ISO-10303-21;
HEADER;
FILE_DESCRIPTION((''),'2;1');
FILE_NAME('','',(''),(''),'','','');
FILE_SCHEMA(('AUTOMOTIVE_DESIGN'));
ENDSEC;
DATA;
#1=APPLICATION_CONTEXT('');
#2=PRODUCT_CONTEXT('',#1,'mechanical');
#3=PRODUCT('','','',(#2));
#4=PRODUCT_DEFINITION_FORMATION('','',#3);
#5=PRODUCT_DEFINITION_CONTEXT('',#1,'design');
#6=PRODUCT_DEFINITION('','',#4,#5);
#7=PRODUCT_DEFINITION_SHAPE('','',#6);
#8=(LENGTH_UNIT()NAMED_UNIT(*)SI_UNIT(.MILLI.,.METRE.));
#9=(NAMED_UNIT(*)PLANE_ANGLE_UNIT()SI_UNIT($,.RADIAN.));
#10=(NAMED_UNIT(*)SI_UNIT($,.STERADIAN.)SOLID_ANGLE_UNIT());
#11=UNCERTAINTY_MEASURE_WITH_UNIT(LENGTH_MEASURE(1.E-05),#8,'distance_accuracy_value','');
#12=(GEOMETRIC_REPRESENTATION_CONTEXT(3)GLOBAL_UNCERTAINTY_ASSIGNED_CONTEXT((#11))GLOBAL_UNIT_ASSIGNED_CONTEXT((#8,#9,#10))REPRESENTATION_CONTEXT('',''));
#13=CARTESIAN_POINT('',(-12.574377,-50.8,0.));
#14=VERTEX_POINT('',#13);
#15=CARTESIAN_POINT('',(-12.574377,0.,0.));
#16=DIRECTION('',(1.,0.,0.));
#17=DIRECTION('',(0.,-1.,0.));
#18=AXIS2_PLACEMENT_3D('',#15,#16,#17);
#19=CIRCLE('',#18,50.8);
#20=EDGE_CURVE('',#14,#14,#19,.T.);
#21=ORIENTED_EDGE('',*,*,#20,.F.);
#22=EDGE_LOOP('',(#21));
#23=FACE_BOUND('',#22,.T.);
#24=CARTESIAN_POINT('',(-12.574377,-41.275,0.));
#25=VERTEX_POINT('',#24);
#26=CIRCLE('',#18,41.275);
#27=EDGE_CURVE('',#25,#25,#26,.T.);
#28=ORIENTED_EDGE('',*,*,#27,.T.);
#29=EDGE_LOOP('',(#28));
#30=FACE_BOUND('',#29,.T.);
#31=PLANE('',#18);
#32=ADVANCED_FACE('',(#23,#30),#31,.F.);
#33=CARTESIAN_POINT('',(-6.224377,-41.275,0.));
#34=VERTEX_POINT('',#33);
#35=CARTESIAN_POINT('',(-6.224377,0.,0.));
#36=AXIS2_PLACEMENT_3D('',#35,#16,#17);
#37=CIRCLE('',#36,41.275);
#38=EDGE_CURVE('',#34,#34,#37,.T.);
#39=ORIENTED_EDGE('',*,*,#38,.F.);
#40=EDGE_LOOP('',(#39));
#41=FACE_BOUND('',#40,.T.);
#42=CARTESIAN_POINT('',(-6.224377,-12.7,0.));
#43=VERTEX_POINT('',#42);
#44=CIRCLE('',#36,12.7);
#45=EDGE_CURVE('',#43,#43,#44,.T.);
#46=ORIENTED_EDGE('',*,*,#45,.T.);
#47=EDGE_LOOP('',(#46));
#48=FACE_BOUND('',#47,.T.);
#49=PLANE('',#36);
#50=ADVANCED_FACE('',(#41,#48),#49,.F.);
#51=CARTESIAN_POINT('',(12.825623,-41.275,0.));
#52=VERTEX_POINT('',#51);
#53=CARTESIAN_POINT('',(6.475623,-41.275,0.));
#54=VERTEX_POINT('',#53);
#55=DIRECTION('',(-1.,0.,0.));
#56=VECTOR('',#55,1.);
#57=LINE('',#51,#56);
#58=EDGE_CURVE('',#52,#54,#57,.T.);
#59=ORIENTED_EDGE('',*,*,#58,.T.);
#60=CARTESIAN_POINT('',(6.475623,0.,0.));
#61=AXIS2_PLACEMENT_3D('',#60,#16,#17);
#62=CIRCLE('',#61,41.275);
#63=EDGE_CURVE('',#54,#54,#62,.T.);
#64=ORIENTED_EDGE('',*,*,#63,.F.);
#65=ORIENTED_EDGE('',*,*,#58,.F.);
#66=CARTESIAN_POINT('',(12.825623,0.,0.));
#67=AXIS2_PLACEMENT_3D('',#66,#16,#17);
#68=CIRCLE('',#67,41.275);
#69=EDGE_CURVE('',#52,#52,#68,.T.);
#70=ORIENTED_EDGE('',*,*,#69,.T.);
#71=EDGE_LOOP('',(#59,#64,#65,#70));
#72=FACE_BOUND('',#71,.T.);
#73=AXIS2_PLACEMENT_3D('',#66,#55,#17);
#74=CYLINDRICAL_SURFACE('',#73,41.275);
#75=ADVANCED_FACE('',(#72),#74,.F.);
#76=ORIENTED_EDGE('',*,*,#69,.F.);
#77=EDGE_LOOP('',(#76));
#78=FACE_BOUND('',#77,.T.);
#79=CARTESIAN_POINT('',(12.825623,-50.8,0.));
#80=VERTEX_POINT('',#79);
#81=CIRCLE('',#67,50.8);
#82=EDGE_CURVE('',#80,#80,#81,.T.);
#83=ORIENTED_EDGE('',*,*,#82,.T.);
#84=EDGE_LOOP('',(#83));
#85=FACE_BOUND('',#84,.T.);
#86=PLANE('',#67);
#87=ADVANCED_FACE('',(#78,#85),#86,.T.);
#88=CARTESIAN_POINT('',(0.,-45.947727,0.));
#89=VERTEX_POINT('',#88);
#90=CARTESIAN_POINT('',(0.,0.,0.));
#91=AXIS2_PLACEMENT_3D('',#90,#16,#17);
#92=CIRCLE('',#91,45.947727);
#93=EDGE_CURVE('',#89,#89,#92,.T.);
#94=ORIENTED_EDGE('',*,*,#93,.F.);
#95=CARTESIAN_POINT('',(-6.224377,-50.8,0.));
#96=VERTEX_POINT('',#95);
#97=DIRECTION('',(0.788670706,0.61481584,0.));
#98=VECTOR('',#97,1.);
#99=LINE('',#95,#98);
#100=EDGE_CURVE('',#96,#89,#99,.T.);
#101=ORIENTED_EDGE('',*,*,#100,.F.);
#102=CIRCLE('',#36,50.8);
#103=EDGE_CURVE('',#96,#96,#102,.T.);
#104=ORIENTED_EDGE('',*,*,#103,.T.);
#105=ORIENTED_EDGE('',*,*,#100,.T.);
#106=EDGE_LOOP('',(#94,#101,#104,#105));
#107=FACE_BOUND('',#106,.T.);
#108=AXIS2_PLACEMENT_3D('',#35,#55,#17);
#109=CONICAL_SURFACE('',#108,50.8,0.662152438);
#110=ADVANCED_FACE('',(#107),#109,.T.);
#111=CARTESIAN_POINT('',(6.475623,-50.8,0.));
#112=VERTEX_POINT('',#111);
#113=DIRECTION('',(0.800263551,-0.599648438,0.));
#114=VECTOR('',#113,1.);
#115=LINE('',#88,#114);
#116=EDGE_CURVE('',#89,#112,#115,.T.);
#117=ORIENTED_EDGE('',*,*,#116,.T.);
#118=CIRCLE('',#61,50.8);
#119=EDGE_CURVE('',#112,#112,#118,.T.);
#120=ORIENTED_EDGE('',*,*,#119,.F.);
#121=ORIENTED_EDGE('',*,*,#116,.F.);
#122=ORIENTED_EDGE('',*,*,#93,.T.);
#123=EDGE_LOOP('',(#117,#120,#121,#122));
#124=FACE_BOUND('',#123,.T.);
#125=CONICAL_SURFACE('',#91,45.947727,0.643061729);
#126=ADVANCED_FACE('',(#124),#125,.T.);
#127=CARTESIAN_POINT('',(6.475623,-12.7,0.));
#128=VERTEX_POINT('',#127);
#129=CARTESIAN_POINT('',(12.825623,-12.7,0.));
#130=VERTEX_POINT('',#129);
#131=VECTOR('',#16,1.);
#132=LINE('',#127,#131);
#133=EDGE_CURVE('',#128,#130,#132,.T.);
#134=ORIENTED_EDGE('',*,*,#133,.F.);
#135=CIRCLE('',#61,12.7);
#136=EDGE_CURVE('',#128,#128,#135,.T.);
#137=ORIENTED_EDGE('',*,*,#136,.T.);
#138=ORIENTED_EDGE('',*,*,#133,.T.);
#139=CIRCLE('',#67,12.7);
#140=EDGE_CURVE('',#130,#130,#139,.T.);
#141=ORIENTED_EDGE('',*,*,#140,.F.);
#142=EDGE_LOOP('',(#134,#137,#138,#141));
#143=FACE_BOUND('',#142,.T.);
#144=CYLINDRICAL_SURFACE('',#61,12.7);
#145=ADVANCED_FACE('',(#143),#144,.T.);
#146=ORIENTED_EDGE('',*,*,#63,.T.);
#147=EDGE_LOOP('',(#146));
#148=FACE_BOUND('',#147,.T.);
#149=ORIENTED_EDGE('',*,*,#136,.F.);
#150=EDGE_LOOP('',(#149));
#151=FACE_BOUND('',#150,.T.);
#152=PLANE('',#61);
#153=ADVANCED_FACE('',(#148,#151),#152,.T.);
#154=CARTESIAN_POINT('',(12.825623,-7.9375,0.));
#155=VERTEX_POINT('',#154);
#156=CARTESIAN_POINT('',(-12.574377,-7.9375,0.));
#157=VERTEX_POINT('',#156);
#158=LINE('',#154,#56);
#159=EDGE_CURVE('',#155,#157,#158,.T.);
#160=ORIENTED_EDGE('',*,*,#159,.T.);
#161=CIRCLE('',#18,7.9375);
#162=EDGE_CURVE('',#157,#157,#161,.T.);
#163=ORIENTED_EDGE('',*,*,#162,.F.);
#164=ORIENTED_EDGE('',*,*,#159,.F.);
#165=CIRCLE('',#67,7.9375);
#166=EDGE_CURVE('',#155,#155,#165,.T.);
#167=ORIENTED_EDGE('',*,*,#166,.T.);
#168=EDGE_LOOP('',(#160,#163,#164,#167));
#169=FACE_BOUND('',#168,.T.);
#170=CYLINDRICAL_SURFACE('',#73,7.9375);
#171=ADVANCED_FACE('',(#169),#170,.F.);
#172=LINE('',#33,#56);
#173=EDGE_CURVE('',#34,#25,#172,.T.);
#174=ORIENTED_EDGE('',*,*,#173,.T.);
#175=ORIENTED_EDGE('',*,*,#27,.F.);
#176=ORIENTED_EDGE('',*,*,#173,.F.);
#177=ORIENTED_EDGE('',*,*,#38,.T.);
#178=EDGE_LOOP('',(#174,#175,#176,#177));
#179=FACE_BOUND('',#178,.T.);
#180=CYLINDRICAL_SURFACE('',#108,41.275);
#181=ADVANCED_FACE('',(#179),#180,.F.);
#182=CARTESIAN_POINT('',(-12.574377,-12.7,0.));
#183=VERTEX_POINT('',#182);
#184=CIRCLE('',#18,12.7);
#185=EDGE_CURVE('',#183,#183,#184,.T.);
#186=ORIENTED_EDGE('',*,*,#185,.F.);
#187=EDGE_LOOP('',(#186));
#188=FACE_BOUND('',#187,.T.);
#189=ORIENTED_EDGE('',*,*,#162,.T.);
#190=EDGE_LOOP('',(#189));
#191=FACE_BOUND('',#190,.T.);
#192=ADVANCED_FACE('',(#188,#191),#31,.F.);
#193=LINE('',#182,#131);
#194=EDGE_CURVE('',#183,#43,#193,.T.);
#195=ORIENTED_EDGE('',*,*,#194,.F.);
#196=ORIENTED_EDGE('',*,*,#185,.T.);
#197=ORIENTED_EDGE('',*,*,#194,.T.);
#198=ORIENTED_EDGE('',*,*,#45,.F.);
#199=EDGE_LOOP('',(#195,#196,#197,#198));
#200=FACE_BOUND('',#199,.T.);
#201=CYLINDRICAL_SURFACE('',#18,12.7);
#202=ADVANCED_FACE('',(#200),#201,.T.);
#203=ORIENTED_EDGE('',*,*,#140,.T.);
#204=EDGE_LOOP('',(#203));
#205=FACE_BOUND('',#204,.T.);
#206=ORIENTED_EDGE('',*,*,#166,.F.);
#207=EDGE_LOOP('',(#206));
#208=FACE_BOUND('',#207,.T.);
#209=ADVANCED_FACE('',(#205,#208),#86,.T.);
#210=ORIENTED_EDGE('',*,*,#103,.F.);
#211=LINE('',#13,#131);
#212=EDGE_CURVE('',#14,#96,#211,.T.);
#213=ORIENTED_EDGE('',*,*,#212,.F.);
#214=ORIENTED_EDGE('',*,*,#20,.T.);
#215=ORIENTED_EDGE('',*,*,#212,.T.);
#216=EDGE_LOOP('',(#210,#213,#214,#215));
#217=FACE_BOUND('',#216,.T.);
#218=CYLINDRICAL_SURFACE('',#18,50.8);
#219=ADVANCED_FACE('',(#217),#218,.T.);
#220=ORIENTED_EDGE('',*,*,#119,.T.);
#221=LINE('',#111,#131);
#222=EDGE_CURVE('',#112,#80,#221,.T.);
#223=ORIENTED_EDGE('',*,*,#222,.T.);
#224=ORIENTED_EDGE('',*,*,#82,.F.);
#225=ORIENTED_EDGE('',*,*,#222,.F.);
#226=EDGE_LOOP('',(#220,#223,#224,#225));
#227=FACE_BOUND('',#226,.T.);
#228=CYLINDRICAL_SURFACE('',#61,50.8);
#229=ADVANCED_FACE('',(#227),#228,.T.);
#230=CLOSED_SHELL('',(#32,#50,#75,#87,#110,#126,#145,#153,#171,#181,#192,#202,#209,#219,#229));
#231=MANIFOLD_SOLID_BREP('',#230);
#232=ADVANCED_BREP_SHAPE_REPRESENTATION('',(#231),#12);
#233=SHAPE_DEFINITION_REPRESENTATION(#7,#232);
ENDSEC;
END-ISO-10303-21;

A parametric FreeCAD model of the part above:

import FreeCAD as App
import Part
import Sketcher

V = App.Vector
Q = App.Units.Quantity


def add_polygon(sketch, points):
    """Adds a closed chain of lines whose ends are joined by coincident constraints."""
    first, n = sketch.GeometryCount, len(points)
    for a, b in zip(points, points[1:] + points[:1]):
        sketch.addGeometry(Part.LineSegment(App.Vector(*a, 0), App.Vector(*b, 0)), False)
    for i in range(n):
        sketch.addConstraint(Sketcher.Constraint("Coincident", first + i, 2, first + (i + 1) % n, 1))

doc = App.newDocument("Part")
body = doc.addObject("PartDesign::Body", "Body")

sketch1 = body.newObject("Sketcher::SketchObject", "Sketch")
sketch1.AttachmentSupport = (doc.getObject("XY_Plane"), [""])
sketch1.MapMode = "FlatFace"
add_polygon(sketch1, [(12.8, -7.9), (-12.6, -7.9), (-12.6, -12.7), (-6.2, -12.7), (-6.2, -41.3), (-12.6, -41.3), (-12.6, -50.8), (-6.2, -50.8), (0, -45.9), (6.5, -50.8), (12.8, -50.8), (12.8, -41.3), (6.5, -41.3), (6.5, -12.7), (12.8, -12.7)])
sketch1.addConstraint([
    Sketcher.Constraint("Horizontal", 0),
    Sketcher.Constraint("Vertical", 1),
    Sketcher.Constraint("Horizontal", 2),
    Sketcher.Constraint("Vertical", 3),
    Sketcher.Constraint("Horizontal", 4),
    Sketcher.Constraint("Vertical", 5),
    Sketcher.Constraint("Horizontal", 6),
    Sketcher.Constraint("Horizontal", 9),
    Sketcher.Constraint("Vertical", 10),
    Sketcher.Constraint("Horizontal", 11),
    Sketcher.Constraint("Vertical", 12),
    Sketcher.Constraint("Horizontal", 13),
    Sketcher.Constraint("Vertical", 14),
    Sketcher.Constraint("PointOnObject", 7, 2, -2),
    Sketcher.Constraint("Horizontal", 6, 2, 8, 2),
    Sketcher.Constraint("Horizontal", 4, 2, 10, 2),
    Sketcher.Constraint("Horizontal", 2, 2, 12, 2),
    Sketcher.Constraint("Vertical", 1, 2, 4, 2),
    Sketcher.Constraint("Vertical", 3, 2, 6, 2),
    Sketcher.Constraint("Vertical", 8, 2, 11, 2),
    Sketcher.Constraint("Vertical", 10, 2, 13, 2),
    Sketcher.Constraint("Equal", 6, 9),
    Sketcher.Constraint("DistanceX", 0, 2, 0, 1, Q("1 in")),
    Sketcher.Constraint("DistanceY", 5, 2, -1, 1, Q("2 in")),
    Sketcher.Constraint("DistanceX", 2, 1, 2, 2, Q("0.25 in")),
    Sketcher.Constraint("DistanceY", 1, 2, -1, 1, Q("0.5 in")),
    Sketcher.Constraint("DistanceY", 1, 2, 1, 1, Q("0.1875 in")),
    Sketcher.Constraint("DistanceY", 3, 2, 3, 1, Q("1.125 in")),
    Sketcher.Constraint("Distance", 7, Q("7.892238 mm")),
    Sketcher.Constraint("Distance", 8, Q("8.091863 mm")),
])
revolution = body.newObject("PartDesign::Revolution", "Revolution")
revolution.Profile = sketch1
revolution.ReferenceAxis = (sketch1, ["H_Axis"])
revolution.Angle = 360

doc.recompute()
